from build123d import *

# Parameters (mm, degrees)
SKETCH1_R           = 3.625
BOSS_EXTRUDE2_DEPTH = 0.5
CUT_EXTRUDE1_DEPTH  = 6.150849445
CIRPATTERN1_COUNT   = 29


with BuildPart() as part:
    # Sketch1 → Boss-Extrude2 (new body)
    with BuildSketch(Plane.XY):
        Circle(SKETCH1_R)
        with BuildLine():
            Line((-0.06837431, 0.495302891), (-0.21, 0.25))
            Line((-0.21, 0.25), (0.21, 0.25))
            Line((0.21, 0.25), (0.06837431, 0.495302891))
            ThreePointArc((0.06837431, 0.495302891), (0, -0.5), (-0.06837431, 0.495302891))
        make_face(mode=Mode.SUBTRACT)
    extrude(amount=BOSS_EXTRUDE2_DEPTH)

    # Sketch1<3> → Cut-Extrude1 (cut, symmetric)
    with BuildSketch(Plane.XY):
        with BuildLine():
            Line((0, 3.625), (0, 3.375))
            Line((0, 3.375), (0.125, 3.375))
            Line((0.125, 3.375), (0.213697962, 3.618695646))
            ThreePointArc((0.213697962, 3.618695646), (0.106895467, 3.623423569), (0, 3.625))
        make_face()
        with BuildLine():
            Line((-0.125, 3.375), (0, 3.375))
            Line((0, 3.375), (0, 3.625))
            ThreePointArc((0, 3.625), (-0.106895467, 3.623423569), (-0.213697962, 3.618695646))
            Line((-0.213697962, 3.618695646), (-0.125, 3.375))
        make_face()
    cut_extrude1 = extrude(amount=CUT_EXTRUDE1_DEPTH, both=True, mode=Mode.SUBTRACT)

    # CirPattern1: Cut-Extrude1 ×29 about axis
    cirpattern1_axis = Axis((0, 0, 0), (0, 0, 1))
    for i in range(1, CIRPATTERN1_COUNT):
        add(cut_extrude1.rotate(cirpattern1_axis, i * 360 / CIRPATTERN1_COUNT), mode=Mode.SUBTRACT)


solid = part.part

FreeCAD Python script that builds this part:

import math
import FreeCAD as App
import Part
import Sketcher

V = App.Vector
Q = App.Units.Quantity

doc = App.newDocument("Part")
body = doc.addObject("PartDesign::Body", "Body")

sketch1 = body.newObject("Sketcher::SketchObject", "Sketch")
sketch1.AttachmentSupport = (doc.getObject("XY_Plane"), [""])
sketch1.MapMode = "FlatFace"
sketch1.addGeometry([
    Part.Circle(V(0, 0, 0), V(0, 0, 1), 3.62),
    Part.ArcOfCircle(Part.Circle(V(0, 0, 0), V(0, 0, 1), 0.5), math.radians(98), math.radians(442)),
    Part.LineSegment(V(-0.07, 0.5, 0), V(-0.21, 0.25, 0)),
    Part.LineSegment(V(-0.21, 0.25, 0), V(0.21, 0.25, 0)),
    Part.LineSegment(V(0.21, 0.25, 0), V(0.07, 0.5, 0)),
], False)
sketch1.addConstraint([
    Sketcher.Constraint("Coincident", 1, 1, 2, 1),
    Sketcher.Constraint("Coincident", 2, 2, 3, 1),
    Sketcher.Constraint("Coincident", 3, 2, 4, 1),
    Sketcher.Constraint("Coincident", 4, 2, 1, 2),
    Sketcher.Constraint("Horizontal", 3),
    Sketcher.Constraint("Coincident", 0, 3, -1, 1),
    Sketcher.Constraint("Coincident", 1, 3, -1, 1),
    Sketcher.Constraint("Horizontal", 1, 1, 4, 2),
    Sketcher.Constraint("Equal", 2, 4),
    Sketcher.Constraint("Radius", 1, Q("0.5 mm")),
    Sketcher.Constraint("Diameter", 0, Q("7.25 mm")),
    Sketcher.Constraint("Angle", 2, Q("-120 deg")),
    Sketcher.Constraint("DistanceX", 3, 1, 3, 2, Q("0.42 mm")),
    Sketcher.Constraint("DistanceY", -1, 1, 2, 2, Q("0.25 mm")),
])
pad1 = body.newObject("PartDesign::Pad", "Pad")
pad1.Profile = sketch1
pad1.Length = 0.5

sketch2 = body.newObject("Sketcher::SketchObject", "Sketch001")
sketch2.AttachmentSupport = (doc.getObject("XY_Plane"), [""])
sketch2.MapMode = "FlatFace"
sketch2.addGeometry([
    Part.LineSegment(V(0.12, 3.38, 0), V(0.21, 3.62, 0)),
    Part.ArcOfCircle(Part.Circle(V(0, 0, 0), V(0, 0, 1), 3.62), math.radians(86.62), math.radians(90)),
    Part.ArcOfCircle(Part.Circle(V(0, 0, 0), V(0, 0, 1), 3.62), math.radians(90), math.radians(93.38)),
    Part.LineSegment(V(-0.21, 3.62, 0), V(-0.12, 3.38, 0)),
    Part.LineSegment(V(-0.12, 3.38, 0), V(0.12, 3.38, 0)),
], False)
sketch2.addConstraint([
    Sketcher.Constraint("Coincident", 0, 2, 1, 1),
    Sketcher.Constraint("Tangent", 1, 2, 2, 1),
    Sketcher.Constraint("Coincident", 2, 2, 3, 1),
    Sketcher.Constraint("Coincident", 3, 2, 4, 1),
    Sketcher.Constraint("Coincident", 4, 2, 0, 1),
    Sketcher.Constraint("Horizontal", 4),
    Sketcher.Constraint("Coincident", 1, 3, -1, 1),
    Sketcher.Constraint("Equal", 1, 2),
    Sketcher.Constraint("PointOnObject", 1, 2, -2),
    Sketcher.Constraint("Horizontal", 0, 2, 2, 2),
    Sketcher.Constraint("Equal", 0, 3),
    Sketcher.Constraint("Angle", 0, Q("70 deg")),
    Sketcher.Constraint("Radius", 1, Q("3.624999 mm")),
    Sketcher.Constraint("DistanceX", 4, 1, 4, 2, Q("0.25 mm")),
    Sketcher.Constraint("DistanceY", 3, 2, 1, 2, Q("0.25 mm")),
])
pocket1 = body.newObject("PartDesign::Pocket", "Pocket")
pocket1.Profile = sketch2
pocket1.Length = 12.301699
pocket1.Midplane = True
doc.recompute()

polarpattern = body.newObject("PartDesign::PolarPattern", "PolarPattern")
polarpattern.Originals = [pocket1]
polarpattern.Axis = (doc.getObject("Z_Axis"), [""])
polarpattern.Angle = 360
polarpattern.Occurrences = 29
body.Tip = polarpattern

doc.recompute()
